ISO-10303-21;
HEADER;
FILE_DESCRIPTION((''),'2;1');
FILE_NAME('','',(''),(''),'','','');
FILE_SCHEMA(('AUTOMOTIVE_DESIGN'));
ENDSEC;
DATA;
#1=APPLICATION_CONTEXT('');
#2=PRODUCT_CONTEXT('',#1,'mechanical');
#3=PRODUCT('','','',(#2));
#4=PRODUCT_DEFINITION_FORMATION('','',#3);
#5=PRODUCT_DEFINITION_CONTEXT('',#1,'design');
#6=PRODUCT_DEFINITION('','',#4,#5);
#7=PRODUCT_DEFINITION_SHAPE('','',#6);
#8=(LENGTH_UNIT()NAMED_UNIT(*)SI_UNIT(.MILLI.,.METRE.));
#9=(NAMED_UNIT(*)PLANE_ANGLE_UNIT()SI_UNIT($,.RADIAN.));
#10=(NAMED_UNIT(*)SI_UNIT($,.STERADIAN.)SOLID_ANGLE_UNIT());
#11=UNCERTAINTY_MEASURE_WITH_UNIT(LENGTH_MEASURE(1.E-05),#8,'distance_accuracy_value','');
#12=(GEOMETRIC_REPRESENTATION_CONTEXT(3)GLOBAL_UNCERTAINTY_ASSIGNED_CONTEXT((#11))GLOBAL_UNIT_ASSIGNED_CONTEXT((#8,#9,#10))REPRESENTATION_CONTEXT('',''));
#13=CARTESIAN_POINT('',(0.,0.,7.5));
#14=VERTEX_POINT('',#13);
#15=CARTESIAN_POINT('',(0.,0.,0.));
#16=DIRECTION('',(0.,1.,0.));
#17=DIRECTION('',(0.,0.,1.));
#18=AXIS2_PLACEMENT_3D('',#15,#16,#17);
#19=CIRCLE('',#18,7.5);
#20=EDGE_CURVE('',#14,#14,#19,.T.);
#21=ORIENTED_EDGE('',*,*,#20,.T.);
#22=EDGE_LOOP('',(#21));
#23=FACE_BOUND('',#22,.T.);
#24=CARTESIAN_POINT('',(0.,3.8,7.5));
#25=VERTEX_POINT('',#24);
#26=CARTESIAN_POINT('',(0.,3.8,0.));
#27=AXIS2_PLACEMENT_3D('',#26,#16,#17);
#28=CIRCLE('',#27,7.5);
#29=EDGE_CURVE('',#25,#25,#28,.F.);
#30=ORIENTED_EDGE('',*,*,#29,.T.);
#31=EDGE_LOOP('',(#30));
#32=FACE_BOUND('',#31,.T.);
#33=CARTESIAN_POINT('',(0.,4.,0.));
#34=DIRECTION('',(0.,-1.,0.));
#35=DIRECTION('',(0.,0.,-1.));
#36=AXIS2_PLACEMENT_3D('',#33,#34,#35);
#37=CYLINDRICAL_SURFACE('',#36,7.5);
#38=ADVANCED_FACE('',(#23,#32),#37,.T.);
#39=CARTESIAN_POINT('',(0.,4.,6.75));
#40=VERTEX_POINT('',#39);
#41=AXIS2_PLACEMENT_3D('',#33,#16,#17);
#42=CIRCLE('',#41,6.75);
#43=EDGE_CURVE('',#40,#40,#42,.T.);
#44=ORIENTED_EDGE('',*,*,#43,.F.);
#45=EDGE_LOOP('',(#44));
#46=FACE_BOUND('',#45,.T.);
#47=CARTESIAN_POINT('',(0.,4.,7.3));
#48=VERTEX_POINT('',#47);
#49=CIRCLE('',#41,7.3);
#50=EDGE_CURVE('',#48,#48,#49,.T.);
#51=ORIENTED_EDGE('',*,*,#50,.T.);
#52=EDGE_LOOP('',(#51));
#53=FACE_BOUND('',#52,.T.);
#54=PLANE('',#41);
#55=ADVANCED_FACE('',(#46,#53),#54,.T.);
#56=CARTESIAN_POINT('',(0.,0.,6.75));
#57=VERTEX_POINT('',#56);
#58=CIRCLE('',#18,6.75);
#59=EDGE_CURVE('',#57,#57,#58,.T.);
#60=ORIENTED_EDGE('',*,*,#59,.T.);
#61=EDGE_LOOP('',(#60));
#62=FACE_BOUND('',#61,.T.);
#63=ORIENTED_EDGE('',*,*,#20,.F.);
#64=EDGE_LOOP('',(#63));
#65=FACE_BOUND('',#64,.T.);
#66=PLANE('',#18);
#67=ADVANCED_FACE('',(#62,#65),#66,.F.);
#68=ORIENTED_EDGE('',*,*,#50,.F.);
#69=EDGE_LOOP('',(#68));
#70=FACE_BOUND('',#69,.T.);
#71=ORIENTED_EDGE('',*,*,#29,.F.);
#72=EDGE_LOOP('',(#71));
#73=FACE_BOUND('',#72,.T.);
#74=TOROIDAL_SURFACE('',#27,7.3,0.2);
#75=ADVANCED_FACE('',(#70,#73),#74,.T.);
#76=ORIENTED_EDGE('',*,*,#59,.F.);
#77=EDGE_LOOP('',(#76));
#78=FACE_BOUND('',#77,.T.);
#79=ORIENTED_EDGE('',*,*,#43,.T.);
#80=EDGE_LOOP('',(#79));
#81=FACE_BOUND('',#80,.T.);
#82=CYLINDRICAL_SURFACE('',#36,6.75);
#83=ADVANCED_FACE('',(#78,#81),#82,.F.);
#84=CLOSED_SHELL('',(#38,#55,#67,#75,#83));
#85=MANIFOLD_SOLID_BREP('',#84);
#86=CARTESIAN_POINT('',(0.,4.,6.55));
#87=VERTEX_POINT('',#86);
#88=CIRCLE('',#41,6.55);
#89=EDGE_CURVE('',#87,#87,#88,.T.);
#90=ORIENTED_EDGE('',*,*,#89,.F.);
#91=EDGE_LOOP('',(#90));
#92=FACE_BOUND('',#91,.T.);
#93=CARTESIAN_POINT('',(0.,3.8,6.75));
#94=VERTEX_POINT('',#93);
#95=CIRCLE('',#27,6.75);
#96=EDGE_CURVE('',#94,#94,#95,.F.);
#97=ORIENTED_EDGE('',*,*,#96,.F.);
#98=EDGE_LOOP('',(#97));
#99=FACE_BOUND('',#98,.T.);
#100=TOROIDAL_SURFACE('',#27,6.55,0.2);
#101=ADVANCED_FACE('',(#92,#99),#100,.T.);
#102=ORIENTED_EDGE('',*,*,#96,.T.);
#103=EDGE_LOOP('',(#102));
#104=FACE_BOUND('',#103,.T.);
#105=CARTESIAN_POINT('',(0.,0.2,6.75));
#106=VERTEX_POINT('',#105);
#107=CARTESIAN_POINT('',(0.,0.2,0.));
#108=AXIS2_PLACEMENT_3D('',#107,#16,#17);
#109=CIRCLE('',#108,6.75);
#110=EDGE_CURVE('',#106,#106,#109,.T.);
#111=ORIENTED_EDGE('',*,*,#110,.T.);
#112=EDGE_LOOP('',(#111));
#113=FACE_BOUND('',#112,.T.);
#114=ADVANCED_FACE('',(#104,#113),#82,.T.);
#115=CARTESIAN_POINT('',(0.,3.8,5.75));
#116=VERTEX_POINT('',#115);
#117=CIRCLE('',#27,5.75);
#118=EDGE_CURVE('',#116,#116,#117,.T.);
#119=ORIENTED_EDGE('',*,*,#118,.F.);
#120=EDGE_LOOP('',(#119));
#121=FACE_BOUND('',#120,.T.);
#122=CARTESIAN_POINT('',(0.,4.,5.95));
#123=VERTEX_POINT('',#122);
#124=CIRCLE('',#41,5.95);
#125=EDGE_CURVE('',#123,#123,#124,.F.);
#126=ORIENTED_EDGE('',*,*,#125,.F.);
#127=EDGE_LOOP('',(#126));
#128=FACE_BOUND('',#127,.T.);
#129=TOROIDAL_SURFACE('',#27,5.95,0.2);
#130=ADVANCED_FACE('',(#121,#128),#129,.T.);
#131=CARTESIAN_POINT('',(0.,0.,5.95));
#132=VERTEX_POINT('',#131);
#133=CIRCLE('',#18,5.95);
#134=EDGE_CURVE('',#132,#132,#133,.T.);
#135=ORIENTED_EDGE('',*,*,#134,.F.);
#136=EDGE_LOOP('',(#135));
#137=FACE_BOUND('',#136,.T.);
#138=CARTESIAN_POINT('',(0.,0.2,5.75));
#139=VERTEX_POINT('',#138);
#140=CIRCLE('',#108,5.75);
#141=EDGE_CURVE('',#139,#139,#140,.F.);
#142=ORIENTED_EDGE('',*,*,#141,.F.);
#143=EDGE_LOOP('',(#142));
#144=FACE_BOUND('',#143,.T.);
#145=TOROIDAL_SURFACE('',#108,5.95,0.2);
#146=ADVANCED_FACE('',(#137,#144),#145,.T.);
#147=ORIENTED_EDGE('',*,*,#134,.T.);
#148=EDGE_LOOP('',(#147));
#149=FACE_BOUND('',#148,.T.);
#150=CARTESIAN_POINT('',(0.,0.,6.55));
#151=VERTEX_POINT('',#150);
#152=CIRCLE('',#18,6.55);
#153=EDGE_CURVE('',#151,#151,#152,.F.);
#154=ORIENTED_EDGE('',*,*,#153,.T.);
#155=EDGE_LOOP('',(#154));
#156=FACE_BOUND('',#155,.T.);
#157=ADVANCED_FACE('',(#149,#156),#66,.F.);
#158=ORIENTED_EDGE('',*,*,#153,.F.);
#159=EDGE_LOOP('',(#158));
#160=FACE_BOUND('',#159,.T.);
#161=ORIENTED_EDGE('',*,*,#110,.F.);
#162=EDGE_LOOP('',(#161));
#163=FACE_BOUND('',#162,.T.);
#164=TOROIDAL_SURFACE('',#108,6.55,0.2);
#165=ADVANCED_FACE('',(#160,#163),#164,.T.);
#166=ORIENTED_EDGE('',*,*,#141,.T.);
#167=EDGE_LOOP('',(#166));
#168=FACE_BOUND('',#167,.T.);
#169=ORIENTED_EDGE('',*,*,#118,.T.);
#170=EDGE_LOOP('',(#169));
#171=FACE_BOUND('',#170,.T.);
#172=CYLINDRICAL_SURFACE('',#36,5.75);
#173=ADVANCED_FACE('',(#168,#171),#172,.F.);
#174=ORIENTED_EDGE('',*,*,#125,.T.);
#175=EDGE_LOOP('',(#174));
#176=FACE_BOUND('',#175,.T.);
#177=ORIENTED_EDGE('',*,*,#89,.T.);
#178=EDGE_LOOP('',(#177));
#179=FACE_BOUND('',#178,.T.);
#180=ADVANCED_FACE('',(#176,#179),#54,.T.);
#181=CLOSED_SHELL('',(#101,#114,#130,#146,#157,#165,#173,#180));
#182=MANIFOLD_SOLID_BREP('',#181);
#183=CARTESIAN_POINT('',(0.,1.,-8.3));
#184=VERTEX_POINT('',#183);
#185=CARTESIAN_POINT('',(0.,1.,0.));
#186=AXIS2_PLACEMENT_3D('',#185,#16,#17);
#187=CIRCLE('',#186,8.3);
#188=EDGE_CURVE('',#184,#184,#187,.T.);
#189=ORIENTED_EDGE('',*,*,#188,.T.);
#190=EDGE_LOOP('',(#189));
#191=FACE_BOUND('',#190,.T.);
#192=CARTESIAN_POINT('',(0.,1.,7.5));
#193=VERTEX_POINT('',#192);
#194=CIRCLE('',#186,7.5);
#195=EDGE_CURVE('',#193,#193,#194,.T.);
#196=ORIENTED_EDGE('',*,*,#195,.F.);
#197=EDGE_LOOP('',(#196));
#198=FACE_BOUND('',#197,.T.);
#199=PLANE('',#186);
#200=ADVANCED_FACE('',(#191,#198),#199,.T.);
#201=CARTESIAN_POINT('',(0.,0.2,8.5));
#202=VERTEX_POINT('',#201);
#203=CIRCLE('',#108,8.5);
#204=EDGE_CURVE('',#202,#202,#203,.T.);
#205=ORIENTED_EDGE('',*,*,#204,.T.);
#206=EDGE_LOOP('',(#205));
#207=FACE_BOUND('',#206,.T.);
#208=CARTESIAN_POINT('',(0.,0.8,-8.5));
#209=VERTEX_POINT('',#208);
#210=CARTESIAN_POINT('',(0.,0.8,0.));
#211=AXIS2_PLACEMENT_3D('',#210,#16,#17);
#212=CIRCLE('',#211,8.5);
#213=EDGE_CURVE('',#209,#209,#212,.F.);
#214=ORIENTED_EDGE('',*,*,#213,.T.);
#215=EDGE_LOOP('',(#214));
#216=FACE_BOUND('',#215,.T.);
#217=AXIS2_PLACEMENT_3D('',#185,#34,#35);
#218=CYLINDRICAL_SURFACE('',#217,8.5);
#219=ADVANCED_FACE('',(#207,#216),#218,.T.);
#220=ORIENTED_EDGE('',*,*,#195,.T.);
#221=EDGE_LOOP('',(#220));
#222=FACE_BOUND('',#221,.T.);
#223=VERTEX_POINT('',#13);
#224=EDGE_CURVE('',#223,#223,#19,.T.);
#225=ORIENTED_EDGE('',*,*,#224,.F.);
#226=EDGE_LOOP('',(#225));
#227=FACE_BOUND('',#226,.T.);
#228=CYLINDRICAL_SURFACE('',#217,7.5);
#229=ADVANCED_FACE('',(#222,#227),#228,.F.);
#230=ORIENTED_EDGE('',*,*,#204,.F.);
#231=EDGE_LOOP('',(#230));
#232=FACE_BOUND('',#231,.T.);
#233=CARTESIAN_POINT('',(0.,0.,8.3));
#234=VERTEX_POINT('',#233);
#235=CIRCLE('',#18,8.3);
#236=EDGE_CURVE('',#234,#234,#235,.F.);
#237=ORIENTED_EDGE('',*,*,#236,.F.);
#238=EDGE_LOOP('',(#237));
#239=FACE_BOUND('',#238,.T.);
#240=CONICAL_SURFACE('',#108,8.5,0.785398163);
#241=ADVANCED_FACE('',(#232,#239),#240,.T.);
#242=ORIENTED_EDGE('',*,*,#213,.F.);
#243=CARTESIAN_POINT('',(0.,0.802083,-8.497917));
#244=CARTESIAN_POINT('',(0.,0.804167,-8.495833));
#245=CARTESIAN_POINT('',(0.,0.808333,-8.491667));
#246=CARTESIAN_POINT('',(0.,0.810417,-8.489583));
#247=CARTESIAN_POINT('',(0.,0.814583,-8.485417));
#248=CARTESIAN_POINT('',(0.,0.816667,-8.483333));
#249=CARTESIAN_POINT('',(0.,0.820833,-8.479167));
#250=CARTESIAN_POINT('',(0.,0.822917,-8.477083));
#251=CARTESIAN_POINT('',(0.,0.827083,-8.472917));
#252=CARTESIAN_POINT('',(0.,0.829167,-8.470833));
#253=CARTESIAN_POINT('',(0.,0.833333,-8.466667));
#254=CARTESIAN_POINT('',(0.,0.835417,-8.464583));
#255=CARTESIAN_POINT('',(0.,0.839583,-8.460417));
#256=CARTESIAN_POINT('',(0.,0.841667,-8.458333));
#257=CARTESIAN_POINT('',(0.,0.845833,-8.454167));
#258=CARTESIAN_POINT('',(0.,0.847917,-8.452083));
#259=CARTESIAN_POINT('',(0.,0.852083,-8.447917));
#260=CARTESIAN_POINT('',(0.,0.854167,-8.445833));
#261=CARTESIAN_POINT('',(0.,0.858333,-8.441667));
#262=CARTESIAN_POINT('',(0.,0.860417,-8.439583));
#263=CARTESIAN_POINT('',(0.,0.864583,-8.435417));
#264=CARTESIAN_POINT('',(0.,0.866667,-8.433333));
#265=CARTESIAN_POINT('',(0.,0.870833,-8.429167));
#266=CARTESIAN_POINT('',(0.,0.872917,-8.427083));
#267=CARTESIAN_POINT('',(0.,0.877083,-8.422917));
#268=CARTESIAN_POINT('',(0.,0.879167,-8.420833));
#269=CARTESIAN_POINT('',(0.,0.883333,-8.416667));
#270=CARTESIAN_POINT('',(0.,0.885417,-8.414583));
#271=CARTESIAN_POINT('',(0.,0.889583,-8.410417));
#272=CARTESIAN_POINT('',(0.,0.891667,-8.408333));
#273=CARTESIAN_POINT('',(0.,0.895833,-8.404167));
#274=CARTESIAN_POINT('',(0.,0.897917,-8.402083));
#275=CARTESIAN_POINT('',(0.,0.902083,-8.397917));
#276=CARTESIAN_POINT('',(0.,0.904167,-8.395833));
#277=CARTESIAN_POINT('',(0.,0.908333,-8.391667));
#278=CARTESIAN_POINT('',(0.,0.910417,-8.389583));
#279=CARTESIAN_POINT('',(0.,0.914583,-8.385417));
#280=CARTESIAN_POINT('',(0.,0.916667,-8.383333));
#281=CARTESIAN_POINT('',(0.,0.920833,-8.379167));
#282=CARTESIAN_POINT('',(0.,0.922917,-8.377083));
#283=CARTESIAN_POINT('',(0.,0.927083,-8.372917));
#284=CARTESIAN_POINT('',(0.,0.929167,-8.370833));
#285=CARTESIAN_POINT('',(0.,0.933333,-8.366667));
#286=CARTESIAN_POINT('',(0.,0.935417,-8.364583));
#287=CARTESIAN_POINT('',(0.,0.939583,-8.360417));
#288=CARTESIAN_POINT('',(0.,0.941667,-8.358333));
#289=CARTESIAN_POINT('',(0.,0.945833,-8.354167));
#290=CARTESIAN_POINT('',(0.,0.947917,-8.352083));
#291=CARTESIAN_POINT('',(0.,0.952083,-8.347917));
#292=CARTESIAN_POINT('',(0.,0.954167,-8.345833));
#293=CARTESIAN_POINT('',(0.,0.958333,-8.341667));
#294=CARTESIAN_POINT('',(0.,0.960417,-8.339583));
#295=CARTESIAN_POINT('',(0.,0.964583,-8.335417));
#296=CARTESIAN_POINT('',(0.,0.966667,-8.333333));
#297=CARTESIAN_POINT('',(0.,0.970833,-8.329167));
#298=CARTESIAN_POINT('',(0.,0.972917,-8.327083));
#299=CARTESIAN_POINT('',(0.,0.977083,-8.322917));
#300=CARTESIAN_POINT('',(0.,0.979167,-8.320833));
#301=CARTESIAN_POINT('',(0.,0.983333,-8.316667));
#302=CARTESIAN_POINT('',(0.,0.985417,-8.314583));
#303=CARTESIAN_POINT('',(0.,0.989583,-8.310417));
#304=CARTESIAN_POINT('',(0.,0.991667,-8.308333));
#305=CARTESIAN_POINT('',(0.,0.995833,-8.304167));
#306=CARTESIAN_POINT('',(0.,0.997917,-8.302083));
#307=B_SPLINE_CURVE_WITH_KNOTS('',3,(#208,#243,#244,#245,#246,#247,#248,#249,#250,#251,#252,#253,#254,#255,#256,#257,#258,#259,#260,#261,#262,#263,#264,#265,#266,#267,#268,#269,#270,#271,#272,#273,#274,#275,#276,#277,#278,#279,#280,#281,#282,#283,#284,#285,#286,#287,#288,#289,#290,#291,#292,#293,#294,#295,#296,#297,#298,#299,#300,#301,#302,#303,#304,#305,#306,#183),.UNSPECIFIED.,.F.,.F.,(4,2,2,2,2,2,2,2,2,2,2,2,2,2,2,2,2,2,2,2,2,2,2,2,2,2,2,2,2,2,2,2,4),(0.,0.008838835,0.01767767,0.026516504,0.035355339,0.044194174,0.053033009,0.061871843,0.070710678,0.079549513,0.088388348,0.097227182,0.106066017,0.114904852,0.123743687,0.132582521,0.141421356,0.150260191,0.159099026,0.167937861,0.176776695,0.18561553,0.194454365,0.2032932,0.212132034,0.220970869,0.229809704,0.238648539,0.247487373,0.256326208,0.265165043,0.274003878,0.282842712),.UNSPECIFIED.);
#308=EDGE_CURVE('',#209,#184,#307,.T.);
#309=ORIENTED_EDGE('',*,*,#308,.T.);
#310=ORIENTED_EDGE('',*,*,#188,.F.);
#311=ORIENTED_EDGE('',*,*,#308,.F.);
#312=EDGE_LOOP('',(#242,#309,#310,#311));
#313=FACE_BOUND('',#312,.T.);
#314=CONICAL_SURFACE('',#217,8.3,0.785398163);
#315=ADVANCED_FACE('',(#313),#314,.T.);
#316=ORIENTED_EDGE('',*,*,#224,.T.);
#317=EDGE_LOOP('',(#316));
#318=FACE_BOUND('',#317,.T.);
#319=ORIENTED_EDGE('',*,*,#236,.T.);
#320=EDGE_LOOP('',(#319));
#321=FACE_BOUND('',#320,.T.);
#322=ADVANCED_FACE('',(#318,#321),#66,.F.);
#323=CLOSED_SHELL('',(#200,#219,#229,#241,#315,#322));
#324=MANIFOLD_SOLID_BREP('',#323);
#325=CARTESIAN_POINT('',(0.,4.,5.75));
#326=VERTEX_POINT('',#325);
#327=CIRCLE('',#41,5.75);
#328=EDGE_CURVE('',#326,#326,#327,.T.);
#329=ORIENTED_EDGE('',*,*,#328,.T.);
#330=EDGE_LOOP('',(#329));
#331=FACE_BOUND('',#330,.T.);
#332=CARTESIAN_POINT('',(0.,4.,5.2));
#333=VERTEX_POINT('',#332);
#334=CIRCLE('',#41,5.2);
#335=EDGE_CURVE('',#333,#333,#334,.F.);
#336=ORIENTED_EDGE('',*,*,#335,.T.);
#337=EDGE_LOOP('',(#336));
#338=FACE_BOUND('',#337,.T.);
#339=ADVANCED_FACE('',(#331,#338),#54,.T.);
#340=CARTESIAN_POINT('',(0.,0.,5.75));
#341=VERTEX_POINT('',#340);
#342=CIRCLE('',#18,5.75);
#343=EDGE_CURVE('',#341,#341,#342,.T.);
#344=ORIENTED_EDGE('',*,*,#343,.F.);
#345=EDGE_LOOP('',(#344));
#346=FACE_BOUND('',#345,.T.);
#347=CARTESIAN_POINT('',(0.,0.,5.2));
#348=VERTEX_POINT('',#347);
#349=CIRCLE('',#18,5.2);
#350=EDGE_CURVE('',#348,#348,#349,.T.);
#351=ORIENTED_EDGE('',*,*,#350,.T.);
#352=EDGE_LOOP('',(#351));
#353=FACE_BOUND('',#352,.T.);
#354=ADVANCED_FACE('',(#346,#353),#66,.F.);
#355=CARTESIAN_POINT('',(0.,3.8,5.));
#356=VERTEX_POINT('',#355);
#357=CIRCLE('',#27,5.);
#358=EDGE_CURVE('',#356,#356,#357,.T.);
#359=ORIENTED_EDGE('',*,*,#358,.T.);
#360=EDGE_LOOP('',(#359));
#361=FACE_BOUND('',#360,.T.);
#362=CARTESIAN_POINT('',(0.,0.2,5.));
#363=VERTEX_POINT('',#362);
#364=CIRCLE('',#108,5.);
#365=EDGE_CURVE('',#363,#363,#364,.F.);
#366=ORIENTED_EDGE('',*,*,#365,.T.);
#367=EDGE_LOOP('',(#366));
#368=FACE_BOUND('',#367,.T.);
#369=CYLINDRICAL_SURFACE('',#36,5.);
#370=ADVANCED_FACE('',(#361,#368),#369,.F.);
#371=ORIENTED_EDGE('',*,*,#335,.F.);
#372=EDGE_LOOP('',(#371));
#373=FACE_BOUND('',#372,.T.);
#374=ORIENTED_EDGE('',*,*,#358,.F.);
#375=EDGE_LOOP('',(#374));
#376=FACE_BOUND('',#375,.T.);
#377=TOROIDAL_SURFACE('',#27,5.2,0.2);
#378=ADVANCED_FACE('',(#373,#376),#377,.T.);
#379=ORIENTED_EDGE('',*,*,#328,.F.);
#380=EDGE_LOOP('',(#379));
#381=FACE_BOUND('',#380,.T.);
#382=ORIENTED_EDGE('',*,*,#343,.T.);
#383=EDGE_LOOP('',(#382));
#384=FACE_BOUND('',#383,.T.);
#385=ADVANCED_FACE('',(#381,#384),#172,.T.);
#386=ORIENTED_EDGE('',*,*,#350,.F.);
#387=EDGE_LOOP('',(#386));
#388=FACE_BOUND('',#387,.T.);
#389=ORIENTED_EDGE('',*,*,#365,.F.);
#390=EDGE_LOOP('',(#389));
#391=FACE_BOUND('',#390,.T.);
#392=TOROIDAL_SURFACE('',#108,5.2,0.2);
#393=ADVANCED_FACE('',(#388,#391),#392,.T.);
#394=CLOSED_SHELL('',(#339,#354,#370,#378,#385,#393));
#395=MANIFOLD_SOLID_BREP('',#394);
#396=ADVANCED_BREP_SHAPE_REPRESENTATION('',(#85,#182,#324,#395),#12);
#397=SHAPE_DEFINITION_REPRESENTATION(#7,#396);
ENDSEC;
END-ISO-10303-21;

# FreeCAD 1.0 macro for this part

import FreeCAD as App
import Part
import Sketcher
Q = App.Units.Quantity


def edges_at(feature, points):
    """Names of the edges that pass closest to the given points."""
    edges = feature.Shape.Edges
    near = lambda p: min(range(len(edges)), key=lambda i: edges[i].distToShape(Part.Vertex(*p))[0])
    return sorted({f"Edge{near(p) + 1}" for p in points})

doc = App.newDocument("Part")
body = doc.addObject("PartDesign::Body", "Body")

# Sketch on XZ plane
sketch1 = body.newObject("Sketcher::SketchObject", "Sketch")
sketch1.AttachmentSupport = (doc.getObject("XZ_Plane"), [""])
sketch1.MapMode = "FlatFace"
sketch1.addGeometry(Part.Circle(App.Vector(0, 0, 0), App.Vector(0, 0, 1), 7), False)
sketch1.addGeometry(Part.Circle(App.Vector(0, 0, 0), App.Vector(0, 0, 1), 6), False)
sketch1.addConstraint(Sketcher.Constraint("Coincident", 0, 3, -1, 1))
sketch1.addConstraint(Sketcher.Constraint("Coincident", 1, 3, -1, 1))
sketch1.addConstraint(Sketcher.Constraint("Diameter", 0, Q("13.5 mm")))
sketch1.addConstraint(Sketcher.Constraint("Diameter", 1, Q("11.5 mm")))
pad1 = body.newObject("PartDesign::Pad", "Pad")
pad1.Profile = sketch1
pad1.Length = 4
pad1.Reversed = True
doc.recompute()

fillet = body.newObject("PartDesign::Fillet", "Fillet")
fillet.Base = (pad1, edges_at(pad1, [
    (0, 4, -6.75),
    (0, 0, -6.75),
    (0, 0, -5.75),
    (0, 4, -5.75),
]))
fillet.Radius = 0.2
body2 = doc.addObject("PartDesign::Body", "Body001")

# Sketch on XZ plane
sketch2 = body2.newObject("Sketcher::SketchObject", "Sketch001")
sketch2.AttachmentSupport = (doc.getObject("XZ_Plane001"), [""])
sketch2.MapMode = "FlatFace"
sketch2.addGeometry(Part.Circle(App.Vector(0, 0, 0), App.Vector(0, 0, 1), 8), False)
sketch2.addGeometry(Part.Circle(App.Vector(0, 0, 0), App.Vector(0, 0, 1), 7), False)
sketch2.addConstraint(Sketcher.Constraint("Coincident", 0, 3, -1, 1))
sketch2.addConstraint(Sketcher.Constraint("Coincident", 1, 3, -1, 1))
sketch2.addConstraint(Sketcher.Constraint("Diameter", 0, Q("15 mm")))
sketch2.addConstraint(Sketcher.Constraint("Diameter", 1, Q("13.5 mm")))
pad2 = body2.newObject("PartDesign::Pad", "Pad001")
pad2.Profile = sketch2
pad2.Length = 4
pad2.Reversed = True
doc.recompute()

fillet2 = body2.newObject("PartDesign::Fillet", "Fillet001")
fillet2.Base = (pad2, edges_at(pad2, [(0, 4, -7.5)]))
fillet2.Radius = 0.2
body3 = doc.addObject("PartDesign::Body", "Body002")

# Sketch on XZ plane
sketch3 = body3.newObject("Sketcher::SketchObject", "Sketch002")
sketch3.AttachmentSupport = (doc.getObject("XZ_Plane002"), [""])
sketch3.MapMode = "FlatFace"
sketch3.addGeometry(Part.Circle(App.Vector(0, 0, 0), App.Vector(0, 0, 1), 6), False)
sketch3.addGeometry(Part.Circle(App.Vector(0, 0, 0), App.Vector(0, 0, 1), 5), False)
sketch3.addConstraint(Sketcher.Constraint("Coincident", 0, 3, -1, 1))
sketch3.addConstraint(Sketcher.Constraint("Coincident", 1, 3, -1, 1))
sketch3.addConstraint(Sketcher.Constraint("Diameter", 1, Q("10 mm")))
sketch3.addConstraint(Sketcher.Constraint("Diameter", 0, Q("11.5 mm")))
pad3 = body3.newObject("PartDesign::Pad", "Pad002")
pad3.Profile = sketch3
pad3.Length = 4
pad3.Reversed = True
doc.recompute()

fillet3 = body3.newObject("PartDesign::Fillet", "Fillet002")
fillet3.Base = (pad3, edges_at(pad3, [(0, 0, -5), (0, 4, -5)]))
fillet3.Radius = 0.2
body4 = doc.addObject("PartDesign::Body", "Body003")

# Sketch on XZ plane
sketch4 = body4.newObject("Sketcher::SketchObject", "Sketch003")
sketch4.AttachmentSupport = (doc.getObject("XZ_Plane003"), [""])
sketch4.MapMode = "FlatFace"
sketch4.addGeometry(Part.Circle(App.Vector(0, 0, 0), App.Vector(0, 0, 1), 8), False)
sketch4.addGeometry(Part.Circle(App.Vector(0, 0, 0), App.Vector(0, 0, 1), 8), False)
sketch4.addConstraint(Sketcher.Constraint("Coincident", 0, 3, -1, 1))
sketch4.addConstraint(Sketcher.Constraint("Coincident", 1, 3, -1, 1))
sketch4.addConstraint(Sketcher.Constraint("Diameter", 0, Q("17 mm")))
sketch4.addConstraint(Sketcher.Constraint("Diameter", 1, Q("15 mm")))
pad4 = body4.newObject("PartDesign::Pad", "Pad003")
pad4.Profile = sketch4
pad4.Length = 1
pad4.Reversed = True
doc.recompute()

chamfer = body4.newObject("PartDesign::Chamfer", "Chamfer")
chamfer.Base = (pad4, edges_at(pad4, [(0, 1, -8.5), (0, 0, -8.5)]))
chamfer.Size = 0.2

doc.recompute()
